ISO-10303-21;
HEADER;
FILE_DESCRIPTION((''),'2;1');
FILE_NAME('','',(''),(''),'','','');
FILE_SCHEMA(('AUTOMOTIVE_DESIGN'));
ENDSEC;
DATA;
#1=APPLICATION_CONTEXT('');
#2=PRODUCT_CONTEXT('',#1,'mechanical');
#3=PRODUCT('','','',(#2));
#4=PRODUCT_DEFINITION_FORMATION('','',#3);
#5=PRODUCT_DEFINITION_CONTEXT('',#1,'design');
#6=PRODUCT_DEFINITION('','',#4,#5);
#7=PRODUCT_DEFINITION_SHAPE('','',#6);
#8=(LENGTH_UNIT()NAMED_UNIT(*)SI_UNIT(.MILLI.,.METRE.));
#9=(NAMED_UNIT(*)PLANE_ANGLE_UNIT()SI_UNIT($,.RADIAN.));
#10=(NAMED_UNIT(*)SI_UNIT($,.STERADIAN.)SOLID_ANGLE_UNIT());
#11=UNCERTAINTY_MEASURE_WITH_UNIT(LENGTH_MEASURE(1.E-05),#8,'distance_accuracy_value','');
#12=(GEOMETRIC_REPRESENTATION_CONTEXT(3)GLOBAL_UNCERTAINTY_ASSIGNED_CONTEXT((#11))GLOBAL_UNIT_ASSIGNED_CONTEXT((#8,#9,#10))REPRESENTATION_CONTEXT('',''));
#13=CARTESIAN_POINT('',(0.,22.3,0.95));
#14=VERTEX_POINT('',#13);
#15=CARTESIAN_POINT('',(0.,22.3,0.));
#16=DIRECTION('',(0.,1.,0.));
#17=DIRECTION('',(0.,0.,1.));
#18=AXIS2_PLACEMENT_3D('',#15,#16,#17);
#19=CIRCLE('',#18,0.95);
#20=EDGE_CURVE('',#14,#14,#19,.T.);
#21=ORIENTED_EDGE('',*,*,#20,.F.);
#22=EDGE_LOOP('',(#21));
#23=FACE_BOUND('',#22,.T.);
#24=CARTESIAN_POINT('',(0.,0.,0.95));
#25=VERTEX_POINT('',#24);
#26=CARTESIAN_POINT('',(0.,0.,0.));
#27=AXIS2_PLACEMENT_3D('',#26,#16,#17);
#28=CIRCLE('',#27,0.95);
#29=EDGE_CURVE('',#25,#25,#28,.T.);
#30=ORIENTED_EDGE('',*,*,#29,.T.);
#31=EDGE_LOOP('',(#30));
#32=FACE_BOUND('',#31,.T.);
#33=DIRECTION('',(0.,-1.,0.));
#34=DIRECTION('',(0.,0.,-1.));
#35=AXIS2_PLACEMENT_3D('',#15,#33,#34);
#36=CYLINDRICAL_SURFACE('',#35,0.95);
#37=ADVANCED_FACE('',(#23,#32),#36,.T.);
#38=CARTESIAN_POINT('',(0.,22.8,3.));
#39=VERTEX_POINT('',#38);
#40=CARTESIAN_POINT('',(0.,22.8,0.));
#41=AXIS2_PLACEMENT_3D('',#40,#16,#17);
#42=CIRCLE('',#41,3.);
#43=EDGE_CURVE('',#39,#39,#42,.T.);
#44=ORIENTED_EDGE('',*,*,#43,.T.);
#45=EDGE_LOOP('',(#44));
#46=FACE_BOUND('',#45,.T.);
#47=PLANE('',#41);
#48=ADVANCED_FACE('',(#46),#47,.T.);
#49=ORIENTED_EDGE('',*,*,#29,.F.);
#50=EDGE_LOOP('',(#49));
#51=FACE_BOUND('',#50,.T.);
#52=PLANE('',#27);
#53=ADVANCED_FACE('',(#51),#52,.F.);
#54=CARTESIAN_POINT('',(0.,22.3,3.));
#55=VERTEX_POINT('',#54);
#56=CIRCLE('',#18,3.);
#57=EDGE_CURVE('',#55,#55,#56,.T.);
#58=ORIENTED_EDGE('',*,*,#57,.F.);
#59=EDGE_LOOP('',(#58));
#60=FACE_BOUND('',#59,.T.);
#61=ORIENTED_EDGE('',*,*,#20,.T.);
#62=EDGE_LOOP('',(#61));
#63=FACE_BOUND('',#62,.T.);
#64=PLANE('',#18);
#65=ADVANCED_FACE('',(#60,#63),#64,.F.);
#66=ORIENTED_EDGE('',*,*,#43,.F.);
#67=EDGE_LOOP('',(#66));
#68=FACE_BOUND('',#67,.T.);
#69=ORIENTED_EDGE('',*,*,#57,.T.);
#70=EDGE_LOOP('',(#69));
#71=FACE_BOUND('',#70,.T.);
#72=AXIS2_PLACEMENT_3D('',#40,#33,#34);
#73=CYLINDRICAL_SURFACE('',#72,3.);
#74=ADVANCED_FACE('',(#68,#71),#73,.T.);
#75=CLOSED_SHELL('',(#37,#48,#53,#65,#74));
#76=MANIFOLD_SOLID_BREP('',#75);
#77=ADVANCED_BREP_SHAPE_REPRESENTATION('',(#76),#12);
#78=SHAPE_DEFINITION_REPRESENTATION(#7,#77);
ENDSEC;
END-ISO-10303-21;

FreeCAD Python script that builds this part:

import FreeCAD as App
import Part
import Sketcher

doc = App.newDocument("Part")
body = doc.addObject("PartDesign::Body", "Body")

sketch1 = body.newObject("Sketcher::SketchObject", "Sketch")
sketch1.AttachmentSupport = (doc.getObject("XZ_Plane"), [""])
sketch1.MapMode = "FlatFace"
sketch1.addGeometry(Part.Circle(App.Vector(0, 0, 0), App.Vector(0, 0, 1), 0.95), False)
sketch1.addConstraint(Sketcher.Constraint("Coincident", 0, 3, -1, 1))
sketch1.addConstraint(Sketcher.Constraint("Diameter", 0, 1.9))
pad1 = body.newObject("PartDesign::Pad", "Pad")
pad1.Profile = sketch1
pad1.Length = 22.3
pad1.Reversed = True

sketch2 = body.newObject("Sketcher::SketchObject", "Sketch001")
sketch2.AttachmentSupport = (doc.getObject("XZ_Plane"), [""])
sketch2.MapMode = "FlatFace"
sketch2.AttachmentOffset = App.Placement(App.Vector(0, 0, -22.3), App.Rotation())
sketch2.addGeometry(Part.Circle(App.Vector(0, 0, 0), App.Vector(0, 0, 1), 3), False)
sketch2.addConstraint(Sketcher.Constraint("Coincident", 0, 3, -1, 1))
sketch2.addConstraint(Sketcher.Constraint("Diameter", 0, 6.0))
pad2 = body.newObject("PartDesign::Pad", "Pad001")
pad2.Profile = sketch2
pad2.Length = 0.5
pad2.Reversed = True

doc.recompute()
